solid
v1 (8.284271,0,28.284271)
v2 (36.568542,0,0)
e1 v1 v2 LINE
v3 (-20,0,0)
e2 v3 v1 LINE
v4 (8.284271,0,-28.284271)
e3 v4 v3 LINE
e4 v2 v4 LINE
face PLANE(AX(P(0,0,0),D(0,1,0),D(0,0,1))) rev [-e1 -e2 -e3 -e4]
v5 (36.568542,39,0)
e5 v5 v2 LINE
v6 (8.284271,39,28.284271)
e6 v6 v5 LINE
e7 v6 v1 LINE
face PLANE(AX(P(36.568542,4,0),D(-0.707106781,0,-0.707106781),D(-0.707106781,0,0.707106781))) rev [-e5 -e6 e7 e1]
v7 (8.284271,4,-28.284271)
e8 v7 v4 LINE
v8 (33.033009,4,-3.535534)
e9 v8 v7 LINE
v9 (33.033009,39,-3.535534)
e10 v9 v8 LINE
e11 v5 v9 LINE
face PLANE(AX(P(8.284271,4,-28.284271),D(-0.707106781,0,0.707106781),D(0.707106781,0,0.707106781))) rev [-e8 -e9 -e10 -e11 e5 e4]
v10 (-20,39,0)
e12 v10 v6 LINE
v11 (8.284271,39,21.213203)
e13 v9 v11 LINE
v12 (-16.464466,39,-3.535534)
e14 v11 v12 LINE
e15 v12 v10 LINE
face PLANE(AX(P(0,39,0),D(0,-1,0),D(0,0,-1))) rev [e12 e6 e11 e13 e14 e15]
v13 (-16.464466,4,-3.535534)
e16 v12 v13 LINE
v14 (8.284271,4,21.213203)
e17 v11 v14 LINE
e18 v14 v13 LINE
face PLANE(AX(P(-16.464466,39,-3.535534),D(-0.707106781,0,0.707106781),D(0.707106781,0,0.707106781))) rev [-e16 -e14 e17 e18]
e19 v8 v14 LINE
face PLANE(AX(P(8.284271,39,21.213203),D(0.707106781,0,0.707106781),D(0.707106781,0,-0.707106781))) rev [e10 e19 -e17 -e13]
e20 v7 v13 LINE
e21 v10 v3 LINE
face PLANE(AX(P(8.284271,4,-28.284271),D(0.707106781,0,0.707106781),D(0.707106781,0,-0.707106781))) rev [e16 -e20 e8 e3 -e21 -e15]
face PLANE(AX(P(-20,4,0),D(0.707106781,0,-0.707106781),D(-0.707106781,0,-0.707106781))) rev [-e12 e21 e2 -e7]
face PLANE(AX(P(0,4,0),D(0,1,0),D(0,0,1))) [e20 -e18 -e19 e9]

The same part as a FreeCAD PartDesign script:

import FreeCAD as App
import Part
import Sketcher

V = App.Vector
Q = App.Units.Quantity

doc = App.newDocument("Part")
body = doc.addObject("PartDesign::Body", "Body")

# Sketch on XZ plane
sketch1 = body.newObject("Sketcher::SketchObject", "Sketch")
sketch1.AttachmentSupport = (doc.getObject("XZ_Plane"), [""])
sketch1.MapMode = "FlatFace"
sketch1.addGeometry([
    Part.LineSegment(V(37, 0, 0), V(8, -28, 0)),
    Part.LineSegment(V(8, -28, 0), V(-20, 0, 0)),
    Part.LineSegment(V(-20, 0, 0), V(8, 28, 0)),
    Part.LineSegment(V(8, 28, 0), V(37, 0, 0)),
], False)
sketch1.addConstraint([
    Sketcher.Constraint("Coincident", 0, 2, 1, 1),
    Sketcher.Constraint("Coincident", 1, 2, 2, 1),
    Sketcher.Constraint("Coincident", 2, 2, 3, 1),
    Sketcher.Constraint("Coincident", 3, 2, 0, 1),
    Sketcher.Constraint("Symmetric", 0, 2, 2, 2, -1),
    Sketcher.Constraint("PointOnObject", 1, 2, -1),
    Sketcher.Constraint("PointOnObject", 3, 2, -1),
    Sketcher.Constraint("Perpendicular", 0, 1),
    Sketcher.Constraint("Perpendicular", 1, 2),
    Sketcher.Constraint("Distance", 0, Q("40 mm")),
    Sketcher.Constraint("DistanceX", 1, 2, -1, 1, Q("20 mm")),
])
pad1 = body.newObject("PartDesign::Pad", "Pad")
pad1.Profile = sketch1
pad1.Length = 4
pad1.Reversed = True

# Sketch on XZ plane
sketch2 = body.newObject("Sketcher::SketchObject", "Sketch001")
sketch2.AttachmentSupport = (doc.getObject("XZ_Plane"), [""])
sketch2.MapMode = "FlatFace"
sketch2.AttachmentOffset = App.Placement(V(0, 0, -4), App.Rotation())
sketch2.addGeometry([
    Part.LineSegment(V(-16, -4, 0), V(-20, 0, 0)),  # 0
    Part.LineSegment(V(-20, 0, 0), V(8, 28, 0)),  # 1
    Part.LineSegment(V(8, 28, 0), V(37, 0, 0)),  # 2
    Part.LineSegment(V(37, 0, 0), V(33, -4, 0)),  # 3
    Part.LineSegment(V(33, -4, 0), V(8, 21, 0)),  # 4
    Part.LineSegment(V(8, 21, 0), V(-16, -4, 0)),  # 5
], False)
sketch2.addConstraint([
    Sketcher.Constraint("Coincident", 0, 2, 1, 1),
    Sketcher.Constraint("Coincident", 1, 2, 2, 1),
    Sketcher.Constraint("Coincident", 2, 2, 3, 1),
    Sketcher.Constraint("Coincident", 3, 2, 4, 1),
    Sketcher.Constraint("Coincident", 4, 2, 5, 1),
    Sketcher.Constraint("Coincident", 5, 2, 0, 1),
    Sketcher.Constraint("PointOnObject", 0, 2, -1),
    Sketcher.Constraint("PointOnObject", 2, 2, -1),
    Sketcher.Constraint("Perpendicular", 0, 1),
    Sketcher.Constraint("Perpendicular", 1, 2),
    Sketcher.Constraint("Perpendicular", 2, 3),
    Sketcher.Constraint("Perpendicular", 3, 4),
    Sketcher.Constraint("Perpendicular", 4, 5),
    Sketcher.Constraint("Horizontal", 3, 2, 5, 2),
    Sketcher.Constraint("Vertical", 1, 2, 4, 2),
    Sketcher.Constraint("Distance", 0, Q("5 mm")),
    Sketcher.Constraint("Distance", 1, Q("40 mm")),
    Sketcher.Constraint("DistanceX", 0, 2, -1, 1, Q("20 mm")),
])
pad2 = body.newObject("PartDesign::Pad", "Pad001")
pad2.Profile = sketch2
pad2.Length = 35
pad2.Reversed = True

doc.recompute()
